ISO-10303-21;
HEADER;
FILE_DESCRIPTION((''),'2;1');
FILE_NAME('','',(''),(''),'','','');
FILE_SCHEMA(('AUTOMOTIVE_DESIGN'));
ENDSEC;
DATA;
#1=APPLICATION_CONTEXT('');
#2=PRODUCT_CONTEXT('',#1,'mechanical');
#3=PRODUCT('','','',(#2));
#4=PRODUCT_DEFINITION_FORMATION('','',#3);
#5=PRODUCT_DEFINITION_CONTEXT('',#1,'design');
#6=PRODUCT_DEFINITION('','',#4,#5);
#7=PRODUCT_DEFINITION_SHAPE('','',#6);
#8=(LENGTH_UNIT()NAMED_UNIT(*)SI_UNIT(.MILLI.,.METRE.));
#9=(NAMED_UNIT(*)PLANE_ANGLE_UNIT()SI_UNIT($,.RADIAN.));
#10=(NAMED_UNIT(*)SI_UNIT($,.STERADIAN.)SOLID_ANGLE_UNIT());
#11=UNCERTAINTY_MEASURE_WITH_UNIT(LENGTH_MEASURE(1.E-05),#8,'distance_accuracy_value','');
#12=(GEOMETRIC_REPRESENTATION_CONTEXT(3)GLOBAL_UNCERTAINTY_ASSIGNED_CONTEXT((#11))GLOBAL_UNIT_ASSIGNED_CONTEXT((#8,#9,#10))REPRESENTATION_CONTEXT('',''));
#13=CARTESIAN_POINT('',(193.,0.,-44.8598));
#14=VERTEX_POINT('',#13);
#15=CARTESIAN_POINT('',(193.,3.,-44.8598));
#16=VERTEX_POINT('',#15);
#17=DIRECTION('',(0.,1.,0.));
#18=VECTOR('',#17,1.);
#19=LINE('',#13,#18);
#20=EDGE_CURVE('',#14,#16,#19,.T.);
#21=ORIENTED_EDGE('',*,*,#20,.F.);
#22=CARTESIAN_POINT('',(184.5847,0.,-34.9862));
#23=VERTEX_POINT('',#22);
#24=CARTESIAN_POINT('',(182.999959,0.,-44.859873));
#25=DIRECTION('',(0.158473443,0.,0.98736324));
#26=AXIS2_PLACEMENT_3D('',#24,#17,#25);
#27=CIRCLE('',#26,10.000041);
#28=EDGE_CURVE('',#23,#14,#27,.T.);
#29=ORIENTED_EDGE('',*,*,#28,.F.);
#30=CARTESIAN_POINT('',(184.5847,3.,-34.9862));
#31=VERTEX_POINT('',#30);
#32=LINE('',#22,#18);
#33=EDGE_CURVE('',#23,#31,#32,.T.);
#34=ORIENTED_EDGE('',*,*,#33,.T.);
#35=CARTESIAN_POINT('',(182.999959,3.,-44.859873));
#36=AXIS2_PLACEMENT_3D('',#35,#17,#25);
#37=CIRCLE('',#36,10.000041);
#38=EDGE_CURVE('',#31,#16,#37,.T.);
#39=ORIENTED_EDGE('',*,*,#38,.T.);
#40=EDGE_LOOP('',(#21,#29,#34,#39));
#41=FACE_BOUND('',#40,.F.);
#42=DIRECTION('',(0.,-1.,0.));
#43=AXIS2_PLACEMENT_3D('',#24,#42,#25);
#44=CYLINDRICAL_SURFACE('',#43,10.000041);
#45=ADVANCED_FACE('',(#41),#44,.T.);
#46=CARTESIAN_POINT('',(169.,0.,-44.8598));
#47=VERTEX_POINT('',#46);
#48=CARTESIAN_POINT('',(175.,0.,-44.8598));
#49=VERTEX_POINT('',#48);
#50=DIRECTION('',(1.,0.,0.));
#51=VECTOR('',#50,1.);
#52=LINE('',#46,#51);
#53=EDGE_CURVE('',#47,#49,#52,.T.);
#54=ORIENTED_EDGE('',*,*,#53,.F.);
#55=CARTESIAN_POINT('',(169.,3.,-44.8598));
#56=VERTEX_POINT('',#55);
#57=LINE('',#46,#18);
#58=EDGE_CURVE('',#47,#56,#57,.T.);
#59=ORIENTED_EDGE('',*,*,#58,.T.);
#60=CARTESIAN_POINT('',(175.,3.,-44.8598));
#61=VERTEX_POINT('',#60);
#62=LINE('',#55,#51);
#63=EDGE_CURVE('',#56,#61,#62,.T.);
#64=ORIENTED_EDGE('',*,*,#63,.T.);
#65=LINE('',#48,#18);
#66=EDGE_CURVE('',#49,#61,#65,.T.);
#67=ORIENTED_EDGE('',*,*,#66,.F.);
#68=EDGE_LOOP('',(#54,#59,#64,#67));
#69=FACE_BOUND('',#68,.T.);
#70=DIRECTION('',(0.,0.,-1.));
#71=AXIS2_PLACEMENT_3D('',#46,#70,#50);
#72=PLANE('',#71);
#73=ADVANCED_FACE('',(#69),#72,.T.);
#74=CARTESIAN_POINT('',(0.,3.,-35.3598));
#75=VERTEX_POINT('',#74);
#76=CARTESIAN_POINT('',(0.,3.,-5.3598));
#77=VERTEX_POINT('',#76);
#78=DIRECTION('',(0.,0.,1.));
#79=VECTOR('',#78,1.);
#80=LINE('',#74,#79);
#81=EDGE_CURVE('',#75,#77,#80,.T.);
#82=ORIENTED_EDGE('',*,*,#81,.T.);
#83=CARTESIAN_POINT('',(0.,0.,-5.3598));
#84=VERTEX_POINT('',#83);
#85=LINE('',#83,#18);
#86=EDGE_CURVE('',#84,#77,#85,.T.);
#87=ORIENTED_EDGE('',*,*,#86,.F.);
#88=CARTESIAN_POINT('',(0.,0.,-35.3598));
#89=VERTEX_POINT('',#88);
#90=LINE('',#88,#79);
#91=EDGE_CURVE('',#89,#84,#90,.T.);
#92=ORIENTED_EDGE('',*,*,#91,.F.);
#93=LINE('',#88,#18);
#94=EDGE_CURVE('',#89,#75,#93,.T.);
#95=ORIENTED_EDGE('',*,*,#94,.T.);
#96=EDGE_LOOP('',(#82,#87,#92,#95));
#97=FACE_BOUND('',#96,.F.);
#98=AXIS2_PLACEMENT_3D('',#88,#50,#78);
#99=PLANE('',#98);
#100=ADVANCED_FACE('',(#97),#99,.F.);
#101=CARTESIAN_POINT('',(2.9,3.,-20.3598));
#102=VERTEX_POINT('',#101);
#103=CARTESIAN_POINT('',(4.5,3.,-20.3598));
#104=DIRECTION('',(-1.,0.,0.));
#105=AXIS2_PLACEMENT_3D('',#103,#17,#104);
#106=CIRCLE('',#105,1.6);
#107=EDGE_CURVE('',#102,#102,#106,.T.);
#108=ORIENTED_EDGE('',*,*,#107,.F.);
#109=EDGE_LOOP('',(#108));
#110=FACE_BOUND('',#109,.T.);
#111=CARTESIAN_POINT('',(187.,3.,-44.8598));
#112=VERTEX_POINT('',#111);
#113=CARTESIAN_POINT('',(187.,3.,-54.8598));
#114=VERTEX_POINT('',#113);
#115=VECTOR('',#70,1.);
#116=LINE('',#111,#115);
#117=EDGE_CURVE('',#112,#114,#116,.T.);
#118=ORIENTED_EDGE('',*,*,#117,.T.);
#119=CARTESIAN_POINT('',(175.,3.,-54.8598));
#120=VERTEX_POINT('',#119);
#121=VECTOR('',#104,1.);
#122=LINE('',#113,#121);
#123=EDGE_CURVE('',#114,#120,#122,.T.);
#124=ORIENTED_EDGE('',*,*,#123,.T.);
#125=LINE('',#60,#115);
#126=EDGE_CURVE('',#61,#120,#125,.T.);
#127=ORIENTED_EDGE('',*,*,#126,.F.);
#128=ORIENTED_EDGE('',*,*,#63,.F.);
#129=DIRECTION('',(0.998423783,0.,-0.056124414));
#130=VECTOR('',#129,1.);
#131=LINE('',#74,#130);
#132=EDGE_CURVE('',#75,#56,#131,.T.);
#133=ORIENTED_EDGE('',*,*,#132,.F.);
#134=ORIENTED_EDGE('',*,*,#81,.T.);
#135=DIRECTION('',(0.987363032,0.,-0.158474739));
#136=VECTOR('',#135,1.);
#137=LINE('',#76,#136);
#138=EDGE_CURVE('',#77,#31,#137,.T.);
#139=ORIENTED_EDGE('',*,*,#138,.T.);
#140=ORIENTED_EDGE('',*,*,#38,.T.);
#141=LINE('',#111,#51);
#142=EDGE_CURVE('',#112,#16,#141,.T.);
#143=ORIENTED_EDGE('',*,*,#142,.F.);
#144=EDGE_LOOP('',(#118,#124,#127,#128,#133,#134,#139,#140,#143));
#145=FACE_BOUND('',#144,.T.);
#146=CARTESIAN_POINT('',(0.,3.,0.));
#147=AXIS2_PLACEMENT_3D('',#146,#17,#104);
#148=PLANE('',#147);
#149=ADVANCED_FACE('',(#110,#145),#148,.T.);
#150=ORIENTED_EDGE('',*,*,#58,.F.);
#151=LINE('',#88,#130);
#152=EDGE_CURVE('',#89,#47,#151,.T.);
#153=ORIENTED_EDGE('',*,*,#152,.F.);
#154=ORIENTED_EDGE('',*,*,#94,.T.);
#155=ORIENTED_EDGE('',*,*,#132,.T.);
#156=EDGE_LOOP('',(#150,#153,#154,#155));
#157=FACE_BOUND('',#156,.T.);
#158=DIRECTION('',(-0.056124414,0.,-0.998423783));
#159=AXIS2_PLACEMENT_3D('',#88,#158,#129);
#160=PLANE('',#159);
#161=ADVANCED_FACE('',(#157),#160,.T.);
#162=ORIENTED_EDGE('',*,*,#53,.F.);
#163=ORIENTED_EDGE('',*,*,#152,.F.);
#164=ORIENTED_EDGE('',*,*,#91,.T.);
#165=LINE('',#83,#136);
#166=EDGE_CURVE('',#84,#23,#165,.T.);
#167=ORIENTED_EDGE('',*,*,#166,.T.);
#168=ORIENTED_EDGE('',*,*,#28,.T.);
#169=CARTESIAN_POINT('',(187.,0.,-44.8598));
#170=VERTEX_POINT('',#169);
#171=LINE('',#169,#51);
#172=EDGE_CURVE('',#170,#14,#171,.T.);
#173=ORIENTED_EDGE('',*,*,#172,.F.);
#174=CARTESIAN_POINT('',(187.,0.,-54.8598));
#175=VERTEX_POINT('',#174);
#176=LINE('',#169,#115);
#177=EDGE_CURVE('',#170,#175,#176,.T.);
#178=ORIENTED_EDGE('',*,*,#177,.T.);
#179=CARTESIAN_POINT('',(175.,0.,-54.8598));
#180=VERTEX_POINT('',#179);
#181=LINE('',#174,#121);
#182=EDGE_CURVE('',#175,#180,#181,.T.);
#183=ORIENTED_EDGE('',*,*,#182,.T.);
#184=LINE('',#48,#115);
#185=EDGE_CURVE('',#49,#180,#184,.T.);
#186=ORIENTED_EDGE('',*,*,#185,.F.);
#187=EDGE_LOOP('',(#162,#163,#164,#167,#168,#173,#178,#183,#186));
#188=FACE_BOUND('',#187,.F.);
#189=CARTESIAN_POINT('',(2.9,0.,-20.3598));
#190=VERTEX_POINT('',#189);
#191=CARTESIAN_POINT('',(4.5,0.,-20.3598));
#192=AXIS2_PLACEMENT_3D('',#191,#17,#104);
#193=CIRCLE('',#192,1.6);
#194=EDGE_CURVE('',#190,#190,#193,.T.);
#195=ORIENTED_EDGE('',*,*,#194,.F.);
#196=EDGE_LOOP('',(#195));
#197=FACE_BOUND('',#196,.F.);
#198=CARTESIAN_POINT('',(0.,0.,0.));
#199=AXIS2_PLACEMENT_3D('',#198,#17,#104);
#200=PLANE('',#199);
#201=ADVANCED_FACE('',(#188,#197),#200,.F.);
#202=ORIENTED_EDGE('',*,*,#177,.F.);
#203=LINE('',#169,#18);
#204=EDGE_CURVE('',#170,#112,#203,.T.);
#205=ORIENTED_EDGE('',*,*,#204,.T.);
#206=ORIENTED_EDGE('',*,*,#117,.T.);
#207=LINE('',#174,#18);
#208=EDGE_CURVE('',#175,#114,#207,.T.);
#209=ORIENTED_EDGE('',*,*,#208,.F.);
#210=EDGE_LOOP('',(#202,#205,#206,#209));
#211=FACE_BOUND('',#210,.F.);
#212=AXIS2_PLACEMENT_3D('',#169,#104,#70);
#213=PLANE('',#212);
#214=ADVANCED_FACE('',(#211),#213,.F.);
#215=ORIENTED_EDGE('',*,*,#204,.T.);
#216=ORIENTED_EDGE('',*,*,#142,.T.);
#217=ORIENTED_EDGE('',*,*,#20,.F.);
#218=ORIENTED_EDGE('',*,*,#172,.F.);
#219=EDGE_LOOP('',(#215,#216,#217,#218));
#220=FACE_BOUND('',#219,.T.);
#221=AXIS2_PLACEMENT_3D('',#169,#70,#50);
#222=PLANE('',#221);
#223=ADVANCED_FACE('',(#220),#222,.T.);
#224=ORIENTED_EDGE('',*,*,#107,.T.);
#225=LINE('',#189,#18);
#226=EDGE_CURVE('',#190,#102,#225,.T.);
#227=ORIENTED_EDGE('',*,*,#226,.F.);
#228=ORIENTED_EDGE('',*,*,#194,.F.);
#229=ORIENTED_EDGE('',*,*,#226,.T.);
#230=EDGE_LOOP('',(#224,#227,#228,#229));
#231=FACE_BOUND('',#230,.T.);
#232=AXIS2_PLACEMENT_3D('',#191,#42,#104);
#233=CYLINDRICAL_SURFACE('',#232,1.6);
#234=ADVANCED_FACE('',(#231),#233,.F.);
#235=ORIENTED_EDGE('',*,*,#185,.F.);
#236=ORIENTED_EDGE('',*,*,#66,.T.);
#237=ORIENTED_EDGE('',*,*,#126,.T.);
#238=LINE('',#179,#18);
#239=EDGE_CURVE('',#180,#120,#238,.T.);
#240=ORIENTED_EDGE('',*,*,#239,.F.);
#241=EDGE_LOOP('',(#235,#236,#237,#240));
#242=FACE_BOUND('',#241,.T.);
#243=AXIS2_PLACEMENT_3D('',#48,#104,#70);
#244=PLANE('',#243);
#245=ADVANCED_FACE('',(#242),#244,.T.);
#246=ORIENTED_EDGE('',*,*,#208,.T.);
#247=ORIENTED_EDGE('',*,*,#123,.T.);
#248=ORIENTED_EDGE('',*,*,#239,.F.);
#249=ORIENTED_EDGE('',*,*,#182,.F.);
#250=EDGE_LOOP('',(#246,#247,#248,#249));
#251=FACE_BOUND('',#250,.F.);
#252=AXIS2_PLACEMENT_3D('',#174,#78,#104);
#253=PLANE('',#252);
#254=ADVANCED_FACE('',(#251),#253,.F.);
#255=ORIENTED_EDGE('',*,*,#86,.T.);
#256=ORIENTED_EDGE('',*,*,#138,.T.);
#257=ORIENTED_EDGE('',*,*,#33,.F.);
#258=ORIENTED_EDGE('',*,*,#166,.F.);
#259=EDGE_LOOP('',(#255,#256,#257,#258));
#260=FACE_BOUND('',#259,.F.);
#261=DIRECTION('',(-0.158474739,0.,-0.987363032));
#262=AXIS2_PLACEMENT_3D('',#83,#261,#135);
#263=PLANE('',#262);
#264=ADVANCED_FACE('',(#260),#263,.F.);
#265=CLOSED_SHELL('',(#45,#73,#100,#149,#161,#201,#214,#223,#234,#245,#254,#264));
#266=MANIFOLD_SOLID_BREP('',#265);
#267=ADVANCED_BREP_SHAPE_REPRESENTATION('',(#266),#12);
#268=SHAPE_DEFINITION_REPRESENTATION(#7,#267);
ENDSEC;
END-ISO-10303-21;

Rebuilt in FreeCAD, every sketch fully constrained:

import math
import FreeCAD as App
import Part
import Sketcher

V = App.Vector
Q = App.Units.Quantity

doc = App.newDocument("Part")
body = doc.addObject("PartDesign::Body", "Body")

sketch1 = body.newObject("Sketcher::SketchObject", "Sketch")
sketch1.AttachmentSupport = (doc.getObject("XZ_Plane"), [""])
sketch1.MapMode = "FlatFace"
sketch1.addGeometry([
    Part.LineSegment(V(169, -44.9, 0), V(0, -35.4, 0)),
    Part.LineSegment(V(0, -35.4, 0), V(0, -5.4, 0)),
    Part.LineSegment(V(0, -5.4, 0), V(184.6, -35, 0)),
    Part.ArcOfCircle(Part.Circle(V(183, -44.9, 0), V(0, 0, 1), 10), math.radians(0), math.radians(81)),
    Part.LineSegment(V(193, -44.9, 0), V(187, -44.9, 0)),
    Part.LineSegment(V(187, -44.9, 0), V(187, -54.9, 0)),
    Part.LineSegment(V(187, -54.9, 0), V(175, -54.9, 0)),
    Part.LineSegment(V(175, -54.9, 0), V(175, -44.9, 0)),
    Part.LineSegment(V(175, -44.9, 0), V(169, -44.9, 0)),
    Part.Circle(V(4.5, -20.4, 0), V(0, 0, 1), 1.6),
], False)
sketch1.addConstraint([
    Sketcher.Constraint("Coincident", 0, 2, 1, 1),
    Sketcher.Constraint("Coincident", 1, 2, 2, 1),
    Sketcher.Constraint("Tangent", 2, 2, 3, 2),
    Sketcher.Constraint("Coincident", 3, 1, 4, 1),
    Sketcher.Constraint("Coincident", 4, 2, 5, 1),
    Sketcher.Constraint("Coincident", 5, 2, 6, 1),
    Sketcher.Constraint("Coincident", 6, 2, 7, 1),
    Sketcher.Constraint("Coincident", 7, 2, 8, 1),
    Sketcher.Constraint("Coincident", 8, 2, 0, 1),
    Sketcher.Constraint("Vertical", 1),
    Sketcher.Constraint("Horizontal", 4),
    Sketcher.Constraint("Vertical", 5),
    Sketcher.Constraint("Horizontal", 6),
    Sketcher.Constraint("Vertical", 7),
    Sketcher.Constraint("Horizontal", 8),
    Sketcher.Constraint("PointOnObject", 0, 2, -2),
    Sketcher.Constraint("Horizontal", 4, 2, 7, 2),
    Sketcher.Constraint("Equal", 4, 8),
    Sketcher.Constraint("Radius", 3, Q("10 mm")),
    Sketcher.Constraint("DistanceX", 4, 2, 4, 1, Q("6 mm")),
    Sketcher.Constraint("DistanceY", 1, 1, 1, 2, Q("30 mm")),
    Sketcher.Constraint("DistanceY", 5, 2, 5, 1, Q("10 mm")),
    Sketcher.Constraint("DistanceY", 5, 2, 3, 3, Q("10 mm")),
    Sketcher.Constraint("Diameter", 9, Q("3.2 mm")),
    Sketcher.Constraint("DistanceX", -1, 1, 9, 3, Q("4.5 mm")),
    Sketcher.Constraint("DistanceX", 6, 2, 6, 1, Q("12 mm")),
    Sketcher.Constraint("DistanceX", -1, 1, 3, 3, Q("183 mm")),
    Sketcher.Constraint("DistanceY", 0, 2, 9, 3, Q("15 mm")),
    Sketcher.Constraint("DistanceY", 3, 3, 9, 3, Q("24.5 mm")),
    Sketcher.Constraint("DistanceY", 3, 3, -1, 1, Q("44.8598 mm")),
])
pad1 = body.newObject("PartDesign::Pad", "Pad")
pad1.Profile = sketch1
pad1.Length = 3
pad1.Reversed = True

doc.recompute()
